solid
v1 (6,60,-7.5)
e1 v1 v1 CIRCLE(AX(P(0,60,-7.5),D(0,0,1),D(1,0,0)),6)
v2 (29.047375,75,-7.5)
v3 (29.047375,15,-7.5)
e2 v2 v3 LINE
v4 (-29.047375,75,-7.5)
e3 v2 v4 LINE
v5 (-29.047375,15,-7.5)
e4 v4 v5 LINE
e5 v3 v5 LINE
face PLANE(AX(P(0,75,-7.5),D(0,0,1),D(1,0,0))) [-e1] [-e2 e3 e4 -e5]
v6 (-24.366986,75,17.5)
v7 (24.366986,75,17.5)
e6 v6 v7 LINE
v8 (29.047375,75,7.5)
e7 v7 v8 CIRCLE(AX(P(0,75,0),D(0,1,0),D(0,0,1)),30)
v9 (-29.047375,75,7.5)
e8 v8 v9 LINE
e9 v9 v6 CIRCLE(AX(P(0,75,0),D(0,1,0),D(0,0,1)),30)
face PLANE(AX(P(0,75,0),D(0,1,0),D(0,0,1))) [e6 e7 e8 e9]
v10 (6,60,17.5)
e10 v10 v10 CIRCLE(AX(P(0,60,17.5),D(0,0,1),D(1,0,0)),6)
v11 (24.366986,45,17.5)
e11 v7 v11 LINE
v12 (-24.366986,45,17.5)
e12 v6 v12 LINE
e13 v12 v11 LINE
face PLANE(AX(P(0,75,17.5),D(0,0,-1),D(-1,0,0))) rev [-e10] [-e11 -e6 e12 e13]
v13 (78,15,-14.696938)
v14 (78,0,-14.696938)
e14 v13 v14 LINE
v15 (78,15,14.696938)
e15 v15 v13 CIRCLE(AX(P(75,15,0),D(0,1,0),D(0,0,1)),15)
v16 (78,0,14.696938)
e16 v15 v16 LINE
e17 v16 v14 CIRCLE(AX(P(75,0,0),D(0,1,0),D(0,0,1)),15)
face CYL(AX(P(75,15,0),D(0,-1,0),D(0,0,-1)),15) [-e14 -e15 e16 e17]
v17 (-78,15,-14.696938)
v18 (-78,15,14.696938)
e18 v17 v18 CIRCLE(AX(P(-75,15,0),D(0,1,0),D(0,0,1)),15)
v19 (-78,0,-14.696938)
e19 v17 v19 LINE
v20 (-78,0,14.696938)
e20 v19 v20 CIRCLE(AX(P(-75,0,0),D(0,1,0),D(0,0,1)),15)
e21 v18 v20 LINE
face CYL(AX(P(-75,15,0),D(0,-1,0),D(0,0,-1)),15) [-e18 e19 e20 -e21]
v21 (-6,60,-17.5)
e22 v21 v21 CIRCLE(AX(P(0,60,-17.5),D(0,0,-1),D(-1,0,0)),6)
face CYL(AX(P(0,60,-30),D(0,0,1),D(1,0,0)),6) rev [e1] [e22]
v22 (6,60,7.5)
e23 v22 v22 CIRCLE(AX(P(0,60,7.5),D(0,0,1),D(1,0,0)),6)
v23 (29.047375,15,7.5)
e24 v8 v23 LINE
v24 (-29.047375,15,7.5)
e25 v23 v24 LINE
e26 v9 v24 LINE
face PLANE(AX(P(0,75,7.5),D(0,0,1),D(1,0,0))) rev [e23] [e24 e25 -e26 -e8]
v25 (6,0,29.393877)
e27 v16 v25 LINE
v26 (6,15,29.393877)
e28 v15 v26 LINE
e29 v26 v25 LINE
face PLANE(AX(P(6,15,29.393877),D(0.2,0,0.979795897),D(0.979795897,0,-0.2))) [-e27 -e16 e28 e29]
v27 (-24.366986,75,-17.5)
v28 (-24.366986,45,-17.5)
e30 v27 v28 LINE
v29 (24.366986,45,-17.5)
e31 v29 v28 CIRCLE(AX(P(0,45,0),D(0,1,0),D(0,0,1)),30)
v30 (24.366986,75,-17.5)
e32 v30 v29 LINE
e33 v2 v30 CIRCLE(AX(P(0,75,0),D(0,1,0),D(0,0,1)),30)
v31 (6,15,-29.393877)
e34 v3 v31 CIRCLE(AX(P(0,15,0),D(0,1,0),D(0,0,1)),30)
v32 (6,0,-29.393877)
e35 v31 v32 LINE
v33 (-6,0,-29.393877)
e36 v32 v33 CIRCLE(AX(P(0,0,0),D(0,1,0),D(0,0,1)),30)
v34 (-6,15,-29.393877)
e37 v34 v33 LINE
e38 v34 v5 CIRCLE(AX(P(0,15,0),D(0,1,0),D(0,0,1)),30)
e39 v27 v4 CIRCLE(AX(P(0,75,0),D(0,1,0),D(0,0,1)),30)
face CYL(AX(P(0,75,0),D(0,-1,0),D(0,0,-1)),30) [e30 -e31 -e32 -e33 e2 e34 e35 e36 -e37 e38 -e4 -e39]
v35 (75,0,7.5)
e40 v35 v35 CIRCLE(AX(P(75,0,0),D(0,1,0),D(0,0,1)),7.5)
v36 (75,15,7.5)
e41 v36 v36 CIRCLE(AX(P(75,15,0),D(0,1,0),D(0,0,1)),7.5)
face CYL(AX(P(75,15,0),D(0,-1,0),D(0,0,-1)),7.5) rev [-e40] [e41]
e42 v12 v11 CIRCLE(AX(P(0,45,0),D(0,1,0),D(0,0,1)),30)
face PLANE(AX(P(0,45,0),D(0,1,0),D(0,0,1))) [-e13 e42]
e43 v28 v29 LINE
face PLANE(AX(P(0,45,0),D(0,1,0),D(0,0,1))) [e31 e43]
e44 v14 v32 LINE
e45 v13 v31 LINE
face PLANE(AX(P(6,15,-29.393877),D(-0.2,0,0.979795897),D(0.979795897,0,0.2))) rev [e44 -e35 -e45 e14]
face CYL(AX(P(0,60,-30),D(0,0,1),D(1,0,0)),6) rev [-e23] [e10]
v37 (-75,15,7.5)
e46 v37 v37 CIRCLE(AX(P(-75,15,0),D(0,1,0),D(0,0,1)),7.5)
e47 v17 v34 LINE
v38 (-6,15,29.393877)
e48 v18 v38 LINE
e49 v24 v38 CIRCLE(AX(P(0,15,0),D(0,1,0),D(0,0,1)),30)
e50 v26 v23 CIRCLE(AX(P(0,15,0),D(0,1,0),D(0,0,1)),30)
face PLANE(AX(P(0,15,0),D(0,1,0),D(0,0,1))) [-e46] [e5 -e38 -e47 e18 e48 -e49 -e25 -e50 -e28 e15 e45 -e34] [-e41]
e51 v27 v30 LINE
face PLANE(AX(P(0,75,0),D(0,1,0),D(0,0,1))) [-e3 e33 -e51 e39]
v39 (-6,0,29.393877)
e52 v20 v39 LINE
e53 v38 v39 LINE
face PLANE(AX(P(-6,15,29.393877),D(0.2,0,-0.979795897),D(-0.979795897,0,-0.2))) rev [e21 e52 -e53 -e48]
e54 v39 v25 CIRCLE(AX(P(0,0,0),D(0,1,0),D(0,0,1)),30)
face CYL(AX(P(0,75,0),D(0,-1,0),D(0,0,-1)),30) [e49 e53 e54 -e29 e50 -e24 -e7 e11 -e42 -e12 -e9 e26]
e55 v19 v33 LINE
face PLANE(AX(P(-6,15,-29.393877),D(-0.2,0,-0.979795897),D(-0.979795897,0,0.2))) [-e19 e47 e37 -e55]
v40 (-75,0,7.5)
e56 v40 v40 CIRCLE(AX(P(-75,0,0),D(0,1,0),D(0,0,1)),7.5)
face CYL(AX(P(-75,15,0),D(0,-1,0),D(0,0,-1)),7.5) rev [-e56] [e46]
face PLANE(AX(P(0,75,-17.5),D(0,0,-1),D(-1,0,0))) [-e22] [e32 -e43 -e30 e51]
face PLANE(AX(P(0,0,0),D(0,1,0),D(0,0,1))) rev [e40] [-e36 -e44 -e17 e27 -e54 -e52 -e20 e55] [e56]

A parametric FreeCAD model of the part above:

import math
import FreeCAD as App
import Part
import Sketcher

V = App.Vector
Q = App.Units.Quantity

doc = App.newDocument("Part")
body = doc.addObject("PartDesign::Body", "Body")

# Sketch on XZ plane
sketch1 = body.newObject("Sketcher::SketchObject", "Sketch")
sketch1.AttachmentSupport = (doc.getObject("XZ_Plane"), [""])
sketch1.MapMode = "FlatFace"
sketch1.addGeometry([
    Part.LineSegment(V(24, -18, 0), V(-24, -18, 0)),
    Part.ArcOfCircle(Part.Circle(V(0, 0, 0), V(0, 0, 1), 30), math.radians(-166), math.radians(-144)),
    Part.LineSegment(V(-29, -8, 0), V(29, -8, 0)),
    Part.ArcOfCircle(Part.Circle(V(0, 0, 0), V(0, 0, 1), 30), math.radians(-36), math.radians(-14)),
], False)
sketch1.addConstraint([
    Sketcher.Constraint("Coincident", 0, 2, 1, 2),
    Sketcher.Constraint("Coincident", 1, 1, 2, 1),
    Sketcher.Constraint("Coincident", 2, 2, 3, 2),
    Sketcher.Constraint("Coincident", 3, 1, 0, 1),
    Sketcher.Constraint("Horizontal", 0),
    Sketcher.Constraint("Horizontal", 2),
    Sketcher.Constraint("Coincident", 1, 3, -1, 1),
    Sketcher.Constraint("Coincident", 3, 3, -1, 1),
    Sketcher.Constraint("Equal", 1, 3),
    Sketcher.Constraint("Radius", 1, Q("30 mm")),
    Sketcher.Constraint("DistanceY", 0, 2, 1, 1, Q("10 mm")),
    Sketcher.Constraint("DistanceY", 0, 2, -1, 1, Q("17.5 mm")),
])
pad1 = body.newObject("PartDesign::Pad", "Pad")
pad1.Profile = sketch1
pad1.Length = 75
pad1.Reversed = True
body2 = doc.addObject("PartDesign::Body", "Body001")

# Sketch on XZ plane
sketch2 = body2.newObject("Sketcher::SketchObject", "Sketch001")
sketch2.AttachmentSupport = (doc.getObject("XZ_Plane001"), [""])
sketch2.MapMode = "FlatFace"
sketch2.addGeometry([
    Part.ArcOfCircle(Part.Circle(V(0, 0, 0), V(0, 0, 1), 30), math.radians(144), math.radians(166)),
    Part.LineSegment(V(-24, 18, 0), V(24, 18, 0)),
    Part.ArcOfCircle(Part.Circle(V(0, 0, 0), V(0, 0, 1), 30), math.radians(14), math.radians(36)),
    Part.LineSegment(V(29, 8, 0), V(-29, 8, 0)),
], False)
sketch2.addConstraint([
    Sketcher.Constraint("Coincident", 0, 1, 1, 1),
    Sketcher.Constraint("Coincident", 1, 2, 2, 2),
    Sketcher.Constraint("Coincident", 2, 1, 3, 1),
    Sketcher.Constraint("Coincident", 3, 2, 0, 2),
    Sketcher.Constraint("Horizontal", 1),
    Sketcher.Constraint("Horizontal", 3),
    Sketcher.Constraint("Coincident", 0, 3, -1, 1),
    Sketcher.Constraint("Coincident", 2, 3, -1, 1),
    Sketcher.Constraint("Equal", 0, 2),
    Sketcher.Constraint("Radius", 0, Q("30 mm")),
    Sketcher.Constraint("DistanceY", 2, 1, 1, 2, Q("10 mm")),
    Sketcher.Constraint("DistanceY", -1, 1, 0, 1, Q("17.5 mm")),
])
pad2 = body2.newObject("PartDesign::Pad", "Pad001")
pad2.Profile = sketch2
pad2.Length = 75
pad2.Reversed = True
body.AllowCompound = True
doc.recompute()

boolean = body.newObject("PartDesign::Boolean", "Boolean")
boolean.Type = "Fuse"
boolean.addObjects([body2])

# Sketch on XZ plane
sketch3 = body.newObject("Sketcher::SketchObject", "Sketch002")
sketch3.AttachmentSupport = (doc.getObject("XZ_Plane"), [""])
sketch3.MapMode = "FlatFace"
sketch3.addGeometry([
    Part.ArcOfCircle(Part.Circle(V(0, 0, 0), V(0, 0, 1), 30), math.radians(102), math.radians(144)),  # 0
    Part.ArcOfCircle(Part.Circle(V(0, 0, 0), V(0, 0, 1), 30), math.radians(78), math.radians(102)),  # 1
    Part.ArcOfCircle(Part.Circle(V(0, 0, 0), V(0, 0, 1), 30), math.radians(36), math.radians(78)),  # 2
    Part.LineSegment(V(24, 18, 0), V(-24, 18, 0)),  # 3
    Part.ArcOfCircle(Part.Circle(V(0, 0, 0), V(0, 0, 1), 30), math.radians(-144), math.radians(-102)),  # 4
    Part.LineSegment(V(-24, -18, 0), V(24, -18, 0)),  # 5
    Part.ArcOfCircle(Part.Circle(V(0, 0, 0), V(0, 0, 1), 30), math.radians(-78), math.radians(-36)),  # 6
    Part.ArcOfCircle(Part.Circle(V(0, 0, 0), V(0, 0, 1), 30), math.radians(-102), math.radians(-78)),  # 7
], False)
sketch3.addConstraint([
    Sketcher.Constraint("Tangent", 0, 1, 1, 2),
    Sketcher.Constraint("Tangent", 1, 1, 2, 2),
    Sketcher.Constraint("Coincident", 2, 1, 3, 1),
    Sketcher.Constraint("Coincident", 3, 2, 0, 2),
    Sketcher.Constraint("Coincident", 4, 1, 5, 1),
    Sketcher.Constraint("Coincident", 5, 2, 6, 2),
    Sketcher.Constraint("Tangent", 6, 1, 7, 2),
    Sketcher.Constraint("Tangent", 7, 1, 4, 2),
    Sketcher.Constraint("Horizontal", 3),
    Sketcher.Constraint("Horizontal", 5),
    Sketcher.Constraint("Coincident", 0, 3, -1, 1),
    Sketcher.Constraint("Coincident", 2, 3, -1, 1),
    Sketcher.Constraint("Coincident", 4, 3, -1, 1),
    Sketcher.Constraint("Coincident", 6, 3, -1, 1),
    Sketcher.Constraint("Equal", 2, 4),
    Sketcher.Constraint("Horizontal", 0, 1, 1, 1),
    Sketcher.Constraint("Horizontal", 6, 1, 7, 1),
    Sketcher.Constraint("Vertical", 3, 2, 4, 1),
    Sketcher.Constraint("Vertical", 1, 1, 6, 1),
    Sketcher.Constraint("Radius", 0, Q("30 mm")),
    Sketcher.Constraint("DistanceX", 0, 1, -1, 1, Q("6 mm")),
    Sketcher.Constraint("DistanceY", -1, 1, 2, 1, Q("17.5 mm")),
])
pad3 = body.newObject("PartDesign::Pad", "Pad002")
pad3.Profile = sketch3
pad3.Length = 45
pad3.Reversed = True

# Sketch on XZ plane
sketch4 = body.newObject("Sketcher::SketchObject", "Sketch003")
sketch4.AttachmentSupport = (doc.getObject("XZ_Plane"), [""])
sketch4.MapMode = "FlatFace"
sketch4.addGeometry([
    Part.ArcOfCircle(Part.Circle(V(0, 0, 0), V(0, 0, 1), 30), math.radians(-166), math.radians(-144)),  # 0
    Part.ArcOfCircle(Part.Circle(V(0, 0, 0), V(0, 0, 1), 30), math.radians(-144), math.radians(-102)),  # 1
    Part.LineSegment(V(-6, -29, 0), V(-78, -15, 0)),  # 2
    Part.ArcOfCircle(Part.Circle(V(-75, 0, 0), V(0, 0, 1), 15), math.radians(102), math.radians(258)),  # 3
    Part.LineSegment(V(-78, 15, 0), V(-6, 29, 0)),  # 4
    Part.ArcOfCircle(Part.Circle(V(0, 0, 0), V(0, 0, 1), 30), math.radians(102), math.radians(144)),  # 5
    Part.ArcOfCircle(Part.Circle(V(0, 0, 0), V(0, 0, 1), 30), math.radians(144), math.radians(166)),  # 6
    Part.LineSegment(V(-29, 8, 0), V(29, 8, 0)),  # 7
    Part.ArcOfCircle(Part.Circle(V(0, 0, 0), V(0, 0, 1), 30), math.radians(14), math.radians(36)),  # 8
    Part.ArcOfCircle(Part.Circle(V(0, 0, 0), V(0, 0, 1), 30), math.radians(36), math.radians(78)),  # 9
    Part.LineSegment(V(6, 29, 0), V(78, 15, 0)),  # 10
    Part.ArcOfCircle(Part.Circle(V(75, 0, 0), V(0, 0, 1), 15), math.radians(-78), math.radians(78)),  # 11
    Part.LineSegment(V(78, -15, 0), V(6, -29, 0)),  # 12
    Part.ArcOfCircle(Part.Circle(V(0, 0, 0), V(0, 0, 1), 30), math.radians(-78), math.radians(-36)),  # 13
    Part.ArcOfCircle(Part.Circle(V(0, 0, 0), V(0, 0, 1), 30), math.radians(-36), math.radians(-14)),  # 14
    Part.LineSegment(V(29, -8, 0), V(-29, -8, 0)),  # 15
    Part.Circle(V(-75, 0, 0), V(0, 0, 1), 8),  # 16
    Part.Circle(V(75, 0, 0), V(0, 0, 1), 8),  # 17
], False)
sketch4.addConstraint([
    Sketcher.Constraint("Tangent", 0, 2, 1, 1),
    Sketcher.Constraint("Tangent", 1, 2, 2, 1),
    Sketcher.Constraint("Tangent", 2, 2, 3, 2),
    Sketcher.Constraint("Tangent", 3, 1, 4, 1),
    Sketcher.Constraint("Tangent", 4, 2, 5, 1),
    Sketcher.Constraint("Tangent", 5, 2, 6, 1),
    Sketcher.Constraint("Coincident", 6, 2, 7, 1),
    Sketcher.Constraint("Coincident", 7, 2, 8, 1),
    Sketcher.Constraint("Tangent", 8, 2, 9, 1),
    Sketcher.Constraint("Tangent", 9, 2, 10, 1),
    Sketcher.Constraint("Tangent", 10, 2, 11, 2),
    Sketcher.Constraint("Tangent", 11, 1, 12, 1),
    Sketcher.Constraint("Tangent", 12, 2, 13, 1),
    Sketcher.Constraint("Tangent", 13, 2, 14, 1),
    Sketcher.Constraint("Coincident", 14, 2, 15, 1),
    Sketcher.Constraint("Coincident", 15, 2, 0, 1),
    Sketcher.Constraint("Horizontal", 7),
    Sketcher.Constraint("Horizontal", 15),
    Sketcher.Constraint("Coincident", 0, 3, -1, 1),
    Sketcher.Constraint("Coincident", 5, 3, -1, 1),
    Sketcher.Constraint("Coincident", 8, 3, -1, 1),
    Sketcher.Constraint("Coincident", 13, 3, -1, 1),
    Sketcher.Constraint("Coincident", 16, 3, 3, 3),
    Sketcher.Constraint("Coincident", 17, 3, 11, 3),
    Sketcher.Constraint("Equal", 0, 1),
    Sketcher.Constraint("Equal", 1, 5),
    Sketcher.Constraint("Equal", 5, 6),
    Sketcher.Constraint("Equal", 6, 8),
    Sketcher.Constraint("Equal", 8, 9),
    Sketcher.Constraint("Equal", 3, 11),
    Sketcher.Constraint("Equal", 9, 13),
    Sketcher.Constraint("Equal", 13, 14),
    Sketcher.Constraint("Equal", 16, 17),
    Sketcher.Constraint("Symmetric", 3, 3, 11, 3, -1, 1),
    Sketcher.Constraint("PointOnObject", 3, 3, -1),
    Sketcher.Constraint("Horizontal", 5, 2, 8, 2),
    Sketcher.Constraint("Horizontal", 0, 2, 13, 2),
    Sketcher.Constraint("Vertical", 0, 2, 5, 2),
    Sketcher.Constraint("Vertical", 7, 2, 14, 2),
    Sketcher.Constraint("Diameter", 16, Q("15 mm")),
    Sketcher.Constraint("Radius", 0, Q("30 mm")),
    Sketcher.Constraint("Radius", 3, Q("15 mm")),
    Sketcher.Constraint("DistanceX", 3, 3, -1, 1, Q("75 mm")),
    Sketcher.Constraint("DistanceY", 6, 2, 5, 2, Q("10 mm")),
    Sketcher.Constraint("DistanceY", 0, 2, 6, 2, Q("25 mm")),
])
pad4 = body.newObject("PartDesign::Pad", "Pad003")
pad4.Profile = sketch4
pad4.Length = 15
pad4.Reversed = True

# Sketch on XY plane
sketch5 = body.newObject("Sketcher::SketchObject", "Sketch004")
sketch5.AttachmentSupport = (doc.getObject("XY_Plane"), [""])
sketch5.MapMode = "FlatFace"
sketch5.AttachmentOffset = App.Placement(V(0, 0, 17.5), App.Rotation())
sketch5.addGeometry(Part.Circle(V(0, 60, 0), V(0, 0, 1), 6), False)
sketch5.addConstraint([
    Sketcher.Constraint("PointOnObject", 0, 3, -2),
    Sketcher.Constraint("Diameter", 0, Q("12 mm")),
    Sketcher.Constraint("DistanceY", -1, 1, 0, 3, Q("60 mm")),
])
pocket1 = body.newObject("PartDesign::Pocket", "Pocket")
pocket1.Profile = sketch5
pocket1.Type = "ThroughAll"

doc.recompute()
